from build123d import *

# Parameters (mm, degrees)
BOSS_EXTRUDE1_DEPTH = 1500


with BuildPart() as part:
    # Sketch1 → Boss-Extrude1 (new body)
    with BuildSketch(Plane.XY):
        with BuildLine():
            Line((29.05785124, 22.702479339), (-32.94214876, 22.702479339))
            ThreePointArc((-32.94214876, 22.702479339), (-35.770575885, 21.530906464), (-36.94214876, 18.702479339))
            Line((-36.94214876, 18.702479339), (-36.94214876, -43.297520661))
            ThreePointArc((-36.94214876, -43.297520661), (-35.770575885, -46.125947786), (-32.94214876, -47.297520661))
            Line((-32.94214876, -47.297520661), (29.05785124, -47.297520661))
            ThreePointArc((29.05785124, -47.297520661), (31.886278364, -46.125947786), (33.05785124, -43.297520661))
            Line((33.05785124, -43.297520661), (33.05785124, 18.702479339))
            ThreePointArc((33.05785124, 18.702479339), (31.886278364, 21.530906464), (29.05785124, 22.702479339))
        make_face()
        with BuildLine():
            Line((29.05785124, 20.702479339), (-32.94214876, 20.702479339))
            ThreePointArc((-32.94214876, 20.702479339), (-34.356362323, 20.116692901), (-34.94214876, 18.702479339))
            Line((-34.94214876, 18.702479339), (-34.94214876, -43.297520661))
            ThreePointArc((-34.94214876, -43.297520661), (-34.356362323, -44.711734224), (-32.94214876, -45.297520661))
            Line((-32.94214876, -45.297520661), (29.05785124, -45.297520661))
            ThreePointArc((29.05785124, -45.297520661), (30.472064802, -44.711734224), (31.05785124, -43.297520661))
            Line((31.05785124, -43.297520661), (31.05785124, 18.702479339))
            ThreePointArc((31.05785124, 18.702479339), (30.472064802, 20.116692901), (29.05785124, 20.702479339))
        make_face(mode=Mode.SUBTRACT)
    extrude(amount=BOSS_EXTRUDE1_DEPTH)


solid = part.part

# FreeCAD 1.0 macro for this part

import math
import FreeCAD as App
import Part
import Sketcher

V = App.Vector

doc = App.newDocument("Part")
body = doc.addObject("PartDesign::Body", "Body")

sketch1 = doc.addObject("Sketcher::SketchObject", "Sketch")
body.addObject(sketch1)
sketch1.AttachmentSupport = (doc.XY_Plane, [""])
sketch1.MapMode = "FlatFace"
sketch1.addGeometry([
    Part.LineSegment(V(29.1, 22.7, 0), V(-32.9, 22.7, 0)),
    Part.ArcOfCircle(Part.Circle(V(-32.9, 18.7, 0), V(0, 0, 1), 4), math.radians(90), math.radians(180)),
    Part.LineSegment(V(-36.9, 18.7, 0), V(-36.9, -43.3, 0)),
    Part.ArcOfCircle(Part.Circle(V(-32.9, -43.3, 0), V(0, 0, 1), 4), math.radians(180), math.radians(270)),
    Part.LineSegment(V(-32.9, -47.3, 0), V(29.1, -47.3, 0)),
    Part.ArcOfCircle(Part.Circle(V(29.1, -43.3, 0), V(0, 0, 1), 4), math.radians(-90), math.radians(0)),
    Part.LineSegment(V(33.1, -43.3, 0), V(33.1, 18.7, 0)),
    Part.ArcOfCircle(Part.Circle(V(29.1, 18.7, 0), V(0, 0, 1), 4), math.radians(0), math.radians(90)),
    Part.LineSegment(V(-32.9, 20.7, 0), V(29.1, 20.7, 0)),
    Part.ArcOfCircle(Part.Circle(V(29.1, 18.7, 0), V(0, 0, 1), 2), math.radians(0), math.radians(90)),
    Part.LineSegment(V(31.1, 18.7, 0), V(31.1, -43.3, 0)),
    Part.ArcOfCircle(Part.Circle(V(29.1, -43.3, 0), V(0, 0, 1), 2), math.radians(-90), math.radians(0)),
    Part.LineSegment(V(29.1, -45.3, 0), V(-32.9, -45.3, 0)),
    Part.ArcOfCircle(Part.Circle(V(-32.9, -43.3, 0), V(0, 0, 1), 2), math.radians(180), math.radians(270)),
    Part.LineSegment(V(-34.9, -43.3, 0), V(-34.9, 18.7, 0)),
    Part.ArcOfCircle(Part.Circle(V(-32.9, 18.7, 0), V(0, 0, 1), 2), math.radians(90), math.radians(180)),
], False)
sketch1.addConstraint([
    Sketcher.Constraint("Tangent", 0, 2, 1, 1),
    Sketcher.Constraint("Tangent", 1, 2, 2, 1),
    Sketcher.Constraint("Tangent", 2, 2, 3, 1),
    Sketcher.Constraint("Tangent", 3, 2, 4, 1),
    Sketcher.Constraint("Tangent", 4, 2, 5, 1),
    Sketcher.Constraint("Tangent", 5, 2, 6, 1),
    Sketcher.Constraint("Tangent", 6, 2, 7, 1),
    Sketcher.Constraint("Tangent", 7, 2, 0, 1),
    Sketcher.Constraint("Tangent", 8, 2, 9, 2),
    Sketcher.Constraint("Tangent", 9, 1, 10, 1),
    Sketcher.Constraint("Tangent", 10, 2, 11, 2),
    Sketcher.Constraint("Tangent", 11, 1, 12, 1),
    Sketcher.Constraint("Tangent", 12, 2, 13, 2),
    Sketcher.Constraint("Tangent", 13, 1, 14, 1),
    Sketcher.Constraint("Tangent", 14, 2, 15, 2),
    Sketcher.Constraint("Tangent", 15, 1, 8, 1),
    Sketcher.Constraint("Horizontal", 0),
    Sketcher.Constraint("Vertical", 2),
    Sketcher.Constraint("Horizontal", 4),
    Sketcher.Constraint("Vertical", 6),
    Sketcher.Constraint("Horizontal", 8),
    Sketcher.Constraint("Vertical", 10),
    Sketcher.Constraint("Horizontal", 12),
    Sketcher.Constraint("Vertical", 14),
    Sketcher.Constraint("Coincident", 9, 3, 7, 3),
    Sketcher.Constraint("Coincident", 11, 3, 5, 3),
    Sketcher.Constraint("Coincident", 13, 3, 3, 3),
    Sketcher.Constraint("Equal", 1, 3),
    Sketcher.Constraint("Equal", 3, 5),
    Sketcher.Constraint("Equal", 5, 7),
    Sketcher.Constraint("Equal", 13, 15),
    Sketcher.Constraint("Equal", 12, 2),
    Sketcher.Constraint("Radius", 1, 4.0),
    Sketcher.Constraint("Radius", 9, 2.0),
    Sketcher.Constraint("DistanceX", 0, 2, 0, 1, 62.0),
    Sketcher.Constraint("DistanceX", 1, 3, -1, 1, 32.942149),
    Sketcher.Constraint("DistanceY", -1, 1, 1, 3, 18.702479),
])
pad1 = doc.addObject("PartDesign::Pad", "Pad")
body.addObject(pad1)
pad1.Profile = sketch1
pad1.Length = 1500

doc.recompute()
